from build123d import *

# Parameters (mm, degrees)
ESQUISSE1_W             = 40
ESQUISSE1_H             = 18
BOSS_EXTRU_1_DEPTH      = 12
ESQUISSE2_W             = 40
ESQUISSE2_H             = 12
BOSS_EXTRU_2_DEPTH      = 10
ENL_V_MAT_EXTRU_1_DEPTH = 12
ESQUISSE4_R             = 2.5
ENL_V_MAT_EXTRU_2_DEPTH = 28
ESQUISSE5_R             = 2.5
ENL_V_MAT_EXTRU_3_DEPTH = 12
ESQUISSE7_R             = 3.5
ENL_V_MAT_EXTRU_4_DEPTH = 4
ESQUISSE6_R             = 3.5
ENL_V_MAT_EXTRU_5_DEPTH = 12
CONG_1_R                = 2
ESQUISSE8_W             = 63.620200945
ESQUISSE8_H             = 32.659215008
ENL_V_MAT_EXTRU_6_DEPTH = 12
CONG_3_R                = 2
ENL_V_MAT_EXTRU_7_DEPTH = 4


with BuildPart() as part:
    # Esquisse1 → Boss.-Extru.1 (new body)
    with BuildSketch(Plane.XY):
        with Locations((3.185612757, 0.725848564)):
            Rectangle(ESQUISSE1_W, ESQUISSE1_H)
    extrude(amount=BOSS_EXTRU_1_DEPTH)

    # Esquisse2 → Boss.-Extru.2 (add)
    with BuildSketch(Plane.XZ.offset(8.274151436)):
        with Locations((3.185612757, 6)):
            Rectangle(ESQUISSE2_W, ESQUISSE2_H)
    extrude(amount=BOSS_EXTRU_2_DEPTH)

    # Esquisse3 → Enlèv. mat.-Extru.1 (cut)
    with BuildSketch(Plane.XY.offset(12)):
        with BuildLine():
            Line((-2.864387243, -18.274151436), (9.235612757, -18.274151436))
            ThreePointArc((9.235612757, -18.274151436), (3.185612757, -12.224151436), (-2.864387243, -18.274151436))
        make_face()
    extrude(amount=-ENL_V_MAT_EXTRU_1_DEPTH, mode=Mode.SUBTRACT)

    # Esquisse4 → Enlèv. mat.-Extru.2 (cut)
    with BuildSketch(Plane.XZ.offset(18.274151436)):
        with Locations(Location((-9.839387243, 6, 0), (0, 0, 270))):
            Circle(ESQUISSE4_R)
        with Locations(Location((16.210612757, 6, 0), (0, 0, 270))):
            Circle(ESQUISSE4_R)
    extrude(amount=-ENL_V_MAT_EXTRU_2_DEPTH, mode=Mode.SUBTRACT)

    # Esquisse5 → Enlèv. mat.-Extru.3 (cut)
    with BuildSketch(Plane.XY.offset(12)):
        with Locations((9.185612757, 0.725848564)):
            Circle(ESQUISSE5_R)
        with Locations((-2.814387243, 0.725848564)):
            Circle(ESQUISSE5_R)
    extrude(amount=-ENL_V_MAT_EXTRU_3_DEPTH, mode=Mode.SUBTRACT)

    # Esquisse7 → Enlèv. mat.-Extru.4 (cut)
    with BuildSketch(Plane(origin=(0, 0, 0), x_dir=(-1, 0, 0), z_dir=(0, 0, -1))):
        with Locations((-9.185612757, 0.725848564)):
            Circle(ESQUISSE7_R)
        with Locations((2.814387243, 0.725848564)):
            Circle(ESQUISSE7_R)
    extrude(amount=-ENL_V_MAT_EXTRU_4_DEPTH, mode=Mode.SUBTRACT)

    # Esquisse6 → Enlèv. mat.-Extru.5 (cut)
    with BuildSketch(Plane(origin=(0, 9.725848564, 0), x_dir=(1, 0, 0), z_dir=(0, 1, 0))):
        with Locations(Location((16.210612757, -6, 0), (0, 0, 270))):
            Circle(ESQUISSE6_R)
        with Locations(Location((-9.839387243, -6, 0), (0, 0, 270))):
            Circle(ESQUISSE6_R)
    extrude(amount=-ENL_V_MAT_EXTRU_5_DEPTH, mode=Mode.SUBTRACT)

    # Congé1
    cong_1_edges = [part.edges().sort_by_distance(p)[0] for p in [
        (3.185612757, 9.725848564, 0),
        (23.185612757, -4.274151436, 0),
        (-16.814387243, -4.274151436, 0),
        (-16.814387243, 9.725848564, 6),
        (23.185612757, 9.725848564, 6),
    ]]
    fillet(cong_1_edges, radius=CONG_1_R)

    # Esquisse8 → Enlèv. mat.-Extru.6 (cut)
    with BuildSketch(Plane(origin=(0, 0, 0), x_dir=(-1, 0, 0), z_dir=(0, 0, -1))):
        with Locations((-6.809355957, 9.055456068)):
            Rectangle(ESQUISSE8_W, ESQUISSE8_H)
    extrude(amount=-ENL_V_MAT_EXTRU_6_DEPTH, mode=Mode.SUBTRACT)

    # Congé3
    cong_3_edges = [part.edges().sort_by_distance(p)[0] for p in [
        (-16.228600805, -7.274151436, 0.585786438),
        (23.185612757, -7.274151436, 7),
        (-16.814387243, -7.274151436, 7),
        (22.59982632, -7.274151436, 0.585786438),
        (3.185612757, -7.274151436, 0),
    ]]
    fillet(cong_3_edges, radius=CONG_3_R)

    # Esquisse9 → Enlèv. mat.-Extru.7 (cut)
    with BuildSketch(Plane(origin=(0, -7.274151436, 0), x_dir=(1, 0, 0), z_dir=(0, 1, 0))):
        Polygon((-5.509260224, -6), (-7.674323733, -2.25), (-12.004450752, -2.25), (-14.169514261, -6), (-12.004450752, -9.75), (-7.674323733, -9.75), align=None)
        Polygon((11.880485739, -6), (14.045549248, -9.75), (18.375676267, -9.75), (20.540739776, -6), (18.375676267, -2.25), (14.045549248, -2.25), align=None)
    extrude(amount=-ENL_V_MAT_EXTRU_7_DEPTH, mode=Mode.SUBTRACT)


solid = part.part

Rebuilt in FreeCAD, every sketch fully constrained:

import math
import FreeCAD as App
import Part
import Sketcher
from FreeCAD import Vector
Q = App.Units.Quantity


def edges_at(feature, points):
    """Names of the edges that pass closest to the given points."""
    edges = feature.Shape.Edges
    near = lambda p: min(range(len(edges)), key=lambda i: edges[i].distToShape(Part.Vertex(*p))[0])
    return sorted({f"Edge{near(p) + 1}" for p in points})

doc = App.newDocument("Part")
body = doc.addObject("PartDesign::Body", "Body")

# Sketch on XY plane
sketch1 = body.newObject("Sketcher::SketchObject", "Sketch")
sketch1.AttachmentSupport = (doc.getObject("XY_Plane"), [""])
sketch1.MapMode = "FlatFace"
sketch1.addGeometry(Part.LineSegment(Vector(-16.814387, 9.725849, 0), Vector(-16.814387, -8.274151, 0)), False)
sketch1.addGeometry(Part.LineSegment(Vector(-16.814387, -8.274151, 0), Vector(23.185613, -8.274151, 0)), False)
sketch1.addGeometry(Part.LineSegment(Vector(23.185613, -8.274151, 0), Vector(23.185613, 9.725849, 0)), False)
sketch1.addGeometry(Part.LineSegment(Vector(23.185613, 9.725849, 0), Vector(-16.814387, 9.725849, 0)), False)
sketch1.addConstraint(Sketcher.Constraint("Coincident", 0, 2, 1, 1))
sketch1.addConstraint(Sketcher.Constraint("Coincident", 1, 2, 2, 1))
sketch1.addConstraint(Sketcher.Constraint("Coincident", 2, 2, 3, 1))
sketch1.addConstraint(Sketcher.Constraint("Coincident", 3, 2, 0, 1))
sketch1.addConstraint(Sketcher.Constraint("Vertical", 0))
sketch1.addConstraint(Sketcher.Constraint("Horizontal", 1))
sketch1.addConstraint(Sketcher.Constraint("Vertical", 2))
sketch1.addConstraint(Sketcher.Constraint("Horizontal", 3))
sketch1.addConstraint(Sketcher.Constraint("DistanceX", 1, 1, 1, 2, 40.0))
sketch1.addConstraint(Sketcher.Constraint("DistanceY", 0, 2, 0, 1, 18.0))
sketch1.addConstraint(Sketcher.Constraint("DistanceY", 0, 2, -1, 1, 8.274151))
sketch1.addConstraint(Sketcher.Constraint("DistanceX", 0, 2, -1, 1, 16.814387))
pad1 = body.newObject("PartDesign::Pad", "Pad")
pad1.Profile = sketch1
pad1.Length = 12

# Sketch on XZ plane
sketch2 = body.newObject("Sketcher::SketchObject", "Sketch001")
sketch2.AttachmentSupport = (doc.getObject("XZ_Plane"), [""])
sketch2.MapMode = "FlatFace"
sketch2.AttachmentOffset = App.Placement(Vector(0, 0, 8.274151), App.Rotation())
sketch2.addGeometry(Part.LineSegment(Vector(-16.814387, 12, 0), Vector(-16.814387, 0, 0)), False)
sketch2.addGeometry(Part.LineSegment(Vector(-16.814387, 0, 0), Vector(23.185613, 0, 0)), False)
sketch2.addGeometry(Part.LineSegment(Vector(23.185613, 0, 0), Vector(23.185613, 12, 0)), False)
sketch2.addGeometry(Part.LineSegment(Vector(23.185613, 12, 0), Vector(-16.814387, 12, 0)), False)
sketch2.addConstraint(Sketcher.Constraint("Coincident", 0, 2, 1, 1))
sketch2.addConstraint(Sketcher.Constraint("Coincident", 1, 2, 2, 1))
sketch2.addConstraint(Sketcher.Constraint("Coincident", 2, 2, 3, 1))
sketch2.addConstraint(Sketcher.Constraint("Coincident", 3, 2, 0, 1))
sketch2.addConstraint(Sketcher.Constraint("Vertical", 0))
sketch2.addConstraint(Sketcher.Constraint("Horizontal", 1))
sketch2.addConstraint(Sketcher.Constraint("Vertical", 2))
sketch2.addConstraint(Sketcher.Constraint("Horizontal", 3))
sketch2.addConstraint(Sketcher.Constraint("PointOnObject", 0, 2, -1))
sketch2.addConstraint(Sketcher.Constraint("DistanceX", 1, 1, 1, 2, 40.0))
sketch2.addConstraint(Sketcher.Constraint("DistanceY", 0, 2, 0, 1, 12.0))
sketch2.addConstraint(Sketcher.Constraint("DistanceX", 0, 2, -1, 1, 16.814387))
pad2 = body.newObject("PartDesign::Pad", "Pad001")
pad2.Profile = sketch2
pad2.Length = 10

# Sketch on XY plane
sketch3 = body.newObject("Sketcher::SketchObject", "Sketch002")
sketch3.AttachmentSupport = (doc.getObject("XY_Plane"), [""])
sketch3.MapMode = "FlatFace"
sketch3.AttachmentOffset = App.Placement(Vector(0, 0, 12), App.Rotation())
sketch3.addGeometry(Part.LineSegment(Vector(-2.864387, -18.274151, 0), Vector(9.235613, -18.274151, 0)), False)
sketch3.addGeometry(Part.ArcOfCircle(Part.Circle(Vector(3.185613, -18.274151, 0), Vector(0, 0, 1), 6.05), math.radians(0), math.radians(180)), False)
sketch3.addConstraint(Sketcher.Constraint("Coincident", 0, 1, 1, 2))
sketch3.addConstraint(Sketcher.Constraint("Coincident", 1, 1, 0, 2))
sketch3.addConstraint(Sketcher.Constraint("Horizontal", 0))
sketch3.addConstraint(Sketcher.Constraint("Horizontal", 1, 3, 0, 1))
sketch3.addConstraint(Sketcher.Constraint("Radius", 1, 6.05))
sketch3.addConstraint(Sketcher.Constraint("DistanceY", 1, 3, -1, 1, 18.274151))
sketch3.addConstraint(Sketcher.Constraint("DistanceX", -1, 1, 1, 3, 3.185613))
pocket1 = body.newObject("PartDesign::Pocket", "Pocket")
pocket1.Profile = sketch3
pocket1.Length = 12

# Sketch on XZ plane
sketch4 = body.newObject("Sketcher::SketchObject", "Sketch003")
sketch4.AttachmentSupport = (doc.getObject("XZ_Plane"), [""])
sketch4.MapMode = "FlatFace"
sketch4.AttachmentOffset = App.Placement(Vector(0, 0, 18.274151), App.Rotation())
sketch4.addGeometry(Part.Circle(Vector(-9.839387, 6, 0), Vector(0, 0, 1), 2.5), False)
sketch4.addGeometry(Part.Circle(Vector(16.210613, 6, 0), Vector(0, 0, 1), 2.5), False)
sketch4.addConstraint(Sketcher.Constraint("Equal", 0, 1))
sketch4.addConstraint(Sketcher.Constraint("Horizontal", 0, 3, 1, 3))
sketch4.addConstraint(Sketcher.Constraint("Diameter", 0, 5.0))
sketch4.addConstraint(Sketcher.Constraint("DistanceY", -1, 1, 0, 3, 6.0))
sketch4.addConstraint(Sketcher.Constraint("DistanceX", 0, 3, 1, 3, 26.05))
sketch4.addConstraint(Sketcher.Constraint("DistanceX", 0, 3, -1, 1, 9.839387))
pocket2 = body.newObject("PartDesign::Pocket", "Pocket001")
pocket2.Profile = sketch4
pocket2.Length = 28

# Sketch on XY plane
sketch5 = body.newObject("Sketcher::SketchObject", "Sketch004")
sketch5.AttachmentSupport = (doc.getObject("XY_Plane"), [""])
sketch5.MapMode = "FlatFace"
sketch5.AttachmentOffset = App.Placement(Vector(0, 0, 12), App.Rotation())
sketch5.addGeometry(Part.Circle(Vector(9.185613, 0.725849, 0), Vector(0, 0, 1), 2.5), False)
sketch5.addGeometry(Part.Circle(Vector(-2.814387, 0.725849, 0), Vector(0, 0, 1), 2.5), False)
sketch5.addConstraint(Sketcher.Constraint("Equal", 0, 1))
sketch5.addConstraint(Sketcher.Constraint("Horizontal", 0, 3, 1, 3))
sketch5.addConstraint(Sketcher.Constraint("Diameter", 0, 5.0))
sketch5.addConstraint(Sketcher.Constraint("DistanceX", 1, 3, 0, 3, 12.0))
sketch5.addConstraint(Sketcher.Constraint("DistanceY", -1, 1, 0, 3, 0.725849))
sketch5.addConstraint(Sketcher.Constraint("DistanceX", -1, 1, 0, 3, 9.185613))
pocket3 = body.newObject("PartDesign::Pocket", "Pocket002")
pocket3.Profile = sketch5
pocket3.Length = 12

# Sketch on XY plane
sketch6 = body.newObject("Sketcher::SketchObject", "Sketch005")
sketch6.AttachmentSupport = (doc.getObject("XY_Plane"), [""])
sketch6.MapMode = "FlatFace"
sketch6.addGeometry(Part.Circle(Vector(9.185613, 0.725849, 0), Vector(0, 0, 1), 3.5), False)
sketch6.addGeometry(Part.Circle(Vector(-2.814387, 0.725849, 0), Vector(0, 0, 1), 3.5), False)
sketch6.addConstraint(Sketcher.Constraint("Equal", 0, 1))
sketch6.addConstraint(Sketcher.Constraint("Horizontal", 0, 3, 1, 3))
sketch6.addConstraint(Sketcher.Constraint("Diameter", 0, 7.0))
sketch6.addConstraint(Sketcher.Constraint("DistanceX", 1, 3, 0, 3, 12.0))
sketch6.addConstraint(Sketcher.Constraint("DistanceY", -1, 1, 0, 3, 0.725849))
sketch6.addConstraint(Sketcher.Constraint("DistanceX", -1, 1, 0, 3, 9.185613))
pocket4 = body.newObject("PartDesign::Pocket", "Pocket003")
pocket4.Profile = sketch6
pocket4.Length = 4
pocket4.Reversed = True

# Sketch on XZ plane
sketch7 = body.newObject("Sketcher::SketchObject", "Sketch006")
sketch7.AttachmentSupport = (doc.getObject("XZ_Plane"), [""])
sketch7.MapMode = "FlatFace"
sketch7.AttachmentOffset = App.Placement(Vector(0, 0, -9.725849), App.Rotation())
sketch7.addGeometry(Part.Circle(Vector(16.210613, 6, 0), Vector(0, 0, 1), 3.5), False)
sketch7.addGeometry(Part.Circle(Vector(-9.839387, 6, 0), Vector(0, 0, 1), 3.5), False)
sketch7.addConstraint(Sketcher.Constraint("Equal", 0, 1))
sketch7.addConstraint(Sketcher.Constraint("Horizontal", 0, 3, 1, 3))
sketch7.addConstraint(Sketcher.Constraint("Diameter", 0, 7.0))
sketch7.addConstraint(Sketcher.Constraint("DistanceY", -1, 1, 0, 3, 6.0))
sketch7.addConstraint(Sketcher.Constraint("DistanceX", 1, 3, 0, 3, 26.05))
sketch7.addConstraint(Sketcher.Constraint("DistanceX", -1, 1, 0, 3, 16.210613))
pocket5 = body.newObject("PartDesign::Pocket", "Pocket004")
pocket5.Profile = sketch7
pocket5.Length = 12
pocket5.Reversed = True
doc.recompute()

fillet = body.newObject("PartDesign::Fillet", "Fillet")
fillet.Base = (pocket5, edges_at(pocket5, [
    (3.186, 9.726, 0),
    (23.186, -4.274, 0),
    (-16.814, -4.274, 0),
    (-16.814, 9.726, 6),
    (23.186, 9.726, 6),
]))
fillet.Radius = 2

# Sketch on XY plane
sketch8 = body.newObject("Sketcher::SketchObject", "Sketch007")
sketch8.AttachmentSupport = (doc.getObject("XY_Plane"), [""])
sketch8.MapMode = "FlatFace"
sketch8.addGeometry(Part.LineSegment(Vector(38.619456, 25.385064, 0), Vector(38.619456, -7.274151, 0)), False)
sketch8.addGeometry(Part.LineSegment(Vector(38.619456, -7.274151, 0), Vector(-25.000745, -7.274151, 0)), False)
sketch8.addGeometry(Part.LineSegment(Vector(-25.000745, -7.274151, 0), Vector(-25.000745, 25.385064, 0)), False)
sketch8.addGeometry(Part.LineSegment(Vector(-25.000745, 25.385064, 0), Vector(38.619456, 25.385064, 0)), False)
sketch8.addConstraint(Sketcher.Constraint("Coincident", 0, 2, 1, 1))
sketch8.addConstraint(Sketcher.Constraint("Coincident", 1, 2, 2, 1))
sketch8.addConstraint(Sketcher.Constraint("Coincident", 2, 2, 3, 1))
sketch8.addConstraint(Sketcher.Constraint("Coincident", 3, 2, 0, 1))
sketch8.addConstraint(Sketcher.Constraint("Vertical", 0))
sketch8.addConstraint(Sketcher.Constraint("Horizontal", 1))
sketch8.addConstraint(Sketcher.Constraint("Vertical", 2))
sketch8.addConstraint(Sketcher.Constraint("Horizontal", 3))
sketch8.addConstraint(Sketcher.Constraint("DistanceX", 1, 2, 1, 1, 63.620201))
sketch8.addConstraint(Sketcher.Constraint("DistanceY", 0, 2, 0, 1, 32.659215))
sketch8.addConstraint(Sketcher.Constraint("DistanceY", 0, 2, -1, 1, 7.274151))
sketch8.addConstraint(Sketcher.Constraint("DistanceX", -1, 1, 0, 2, 38.619456))
pocket6 = body.newObject("PartDesign::Pocket", "Pocket005")
pocket6.Profile = sketch8
pocket6.Length = 12
pocket6.Reversed = True
doc.recompute()

fillet2 = body.newObject("PartDesign::Fillet", "Fillet001")
fillet2.Base = (pocket6, edges_at(pocket6, [
    (-16.229, -7.274, 0.586),
    (23.186, -7.274, 7),
    (-16.814, -7.274, 7),
    (22.6, -7.274, 0.586),
    (3.186, -7.274, 0),
]))
fillet2.Radius = 2

# Sketch on XZ plane
sketch9 = body.newObject("Sketcher::SketchObject", "Sketch008")
sketch9.AttachmentSupport = (doc.getObject("XZ_Plane"), [""])
sketch9.MapMode = "FlatFace"
sketch9.AttachmentOffset = App.Placement(Vector(0, 0, 7.274151), App.Rotation())
sketch9.addGeometry(Part.LineSegment(Vector(-5.50926, 6, 0), Vector(-7.674324, 2.25, 0)), False)
sketch9.addGeometry(Part.LineSegment(Vector(-7.674324, 2.25, 0), Vector(-12.004451, 2.25, 0)), False)
sketch9.addGeometry(Part.LineSegment(Vector(-12.004451, 2.25, 0), Vector(-14.169514, 6, 0)), False)
sketch9.addGeometry(Part.LineSegment(Vector(-14.169514, 6, 0), Vector(-12.004451, 9.75, 0)), False)
sketch9.addGeometry(Part.LineSegment(Vector(-12.004451, 9.75, 0), Vector(-7.674324, 9.75, 0)), False)
sketch9.addGeometry(Part.LineSegment(Vector(-7.674324, 9.75, 0), Vector(-5.50926, 6, 0)), False)
sketch9.addGeometry(Part.LineSegment(Vector(11.880486, 6, 0), Vector(14.045549, 9.75, 0)), False)
sketch9.addGeometry(Part.LineSegment(Vector(14.045549, 9.75, 0), Vector(18.375676, 9.75, 0)), False)
sketch9.addGeometry(Part.LineSegment(Vector(18.375676, 9.75, 0), Vector(20.54074, 6, 0)), False)
sketch9.addGeometry(Part.LineSegment(Vector(20.54074, 6, 0), Vector(18.375676, 2.25, 0)), False)
sketch9.addGeometry(Part.LineSegment(Vector(18.375676, 2.25, 0), Vector(14.045549, 2.25, 0)), False)
sketch9.addGeometry(Part.LineSegment(Vector(14.045549, 2.25, 0), Vector(11.880486, 6, 0)), False)
sketch9.addConstraint(Sketcher.Constraint("Coincident", 0, 2, 1, 1))
sketch9.addConstraint(Sketcher.Constraint("Coincident", 1, 2, 2, 1))
sketch9.addConstraint(Sketcher.Constraint("Coincident", 2, 2, 3, 1))
sketch9.addConstraint(Sketcher.Constraint("Coincident", 3, 2, 4, 1))
sketch9.addConstraint(Sketcher.Constraint("Coincident", 4, 2, 5, 1))
sketch9.addConstraint(Sketcher.Constraint("Coincident", 5, 2, 0, 1))
sketch9.addConstraint(Sketcher.Constraint("Coincident", 6, 2, 7, 1))
sketch9.addConstraint(Sketcher.Constraint("Coincident", 7, 2, 8, 1))
sketch9.addConstraint(Sketcher.Constraint("Coincident", 8, 2, 9, 1))
sketch9.addConstraint(Sketcher.Constraint("Coincident", 9, 2, 10, 1))
sketch9.addConstraint(Sketcher.Constraint("Coincident", 10, 2, 11, 1))
sketch9.addConstraint(Sketcher.Constraint("Coincident", 11, 2, 6, 1))
sketch9.addConstraint(Sketcher.Constraint("Horizontal", 1))
sketch9.addConstraint(Sketcher.Constraint("Horizontal", 4))
sketch9.addConstraint(Sketcher.Constraint("Horizontal", 7))
sketch9.addConstraint(Sketcher.Constraint("Horizontal", 10))
sketch9.addConstraint(Sketcher.Constraint("Parallel", 0, 3))
sketch9.addConstraint(Sketcher.Constraint("Parallel", 2, 5))
sketch9.addConstraint(Sketcher.Constraint("Parallel", 3, 6))
sketch9.addConstraint(Sketcher.Constraint("Parallel", 5, 8))
sketch9.addConstraint(Sketcher.Constraint("Parallel", 6, 9))
sketch9.addConstraint(Sketcher.Constraint("Parallel", 8, 11))
sketch9.addConstraint(Sketcher.Constraint("Horizontal", 2, 2, 5, 2))
sketch9.addConstraint(Sketcher.Constraint("Horizontal", 4, 2, 6, 2))
sketch9.addConstraint(Sketcher.Constraint("Horizontal", 5, 2, 8, 2))
sketch9.addConstraint(Sketcher.Constraint("Horizontal", 1, 2, 9, 2))
sketch9.addConstraint(Sketcher.Constraint("Horizontal", 8, 2, 11, 2))
sketch9.addConstraint(Sketcher.Constraint("Vertical", 1, 2, 3, 2))
sketch9.addConstraint(Sketcher.Constraint("Vertical", 0, 2, 4, 2))
sketch9.addConstraint(Sketcher.Constraint("Equal", 4, 7))
sketch9.addConstraint(Sketcher.Constraint("Angle", 0, Q("-120 deg")))
sketch9.addConstraint(Sketcher.Constraint("DistanceY", -1, 1, 2, 2, 6.0))
sketch9.addConstraint(Sketcher.Constraint("DistanceY", 1, 2, 3, 2, 7.5))
sketch9.addConstraint(Sketcher.Constraint("DistanceX", 3, 2, 6, 2, 26.05))
sketch9.addConstraint(Sketcher.Constraint("DistanceX", 1, 2, 1, 1, 4.330127))
sketch9.addConstraint(Sketcher.Constraint("DistanceX", 1, 2, -1, 1, 12.004451))
pocket7 = body.newObject("PartDesign::Pocket", "Pocket006")
pocket7.Profile = sketch9
pocket7.Length = 4
pocket7.Reversed = True

doc.recompute()
